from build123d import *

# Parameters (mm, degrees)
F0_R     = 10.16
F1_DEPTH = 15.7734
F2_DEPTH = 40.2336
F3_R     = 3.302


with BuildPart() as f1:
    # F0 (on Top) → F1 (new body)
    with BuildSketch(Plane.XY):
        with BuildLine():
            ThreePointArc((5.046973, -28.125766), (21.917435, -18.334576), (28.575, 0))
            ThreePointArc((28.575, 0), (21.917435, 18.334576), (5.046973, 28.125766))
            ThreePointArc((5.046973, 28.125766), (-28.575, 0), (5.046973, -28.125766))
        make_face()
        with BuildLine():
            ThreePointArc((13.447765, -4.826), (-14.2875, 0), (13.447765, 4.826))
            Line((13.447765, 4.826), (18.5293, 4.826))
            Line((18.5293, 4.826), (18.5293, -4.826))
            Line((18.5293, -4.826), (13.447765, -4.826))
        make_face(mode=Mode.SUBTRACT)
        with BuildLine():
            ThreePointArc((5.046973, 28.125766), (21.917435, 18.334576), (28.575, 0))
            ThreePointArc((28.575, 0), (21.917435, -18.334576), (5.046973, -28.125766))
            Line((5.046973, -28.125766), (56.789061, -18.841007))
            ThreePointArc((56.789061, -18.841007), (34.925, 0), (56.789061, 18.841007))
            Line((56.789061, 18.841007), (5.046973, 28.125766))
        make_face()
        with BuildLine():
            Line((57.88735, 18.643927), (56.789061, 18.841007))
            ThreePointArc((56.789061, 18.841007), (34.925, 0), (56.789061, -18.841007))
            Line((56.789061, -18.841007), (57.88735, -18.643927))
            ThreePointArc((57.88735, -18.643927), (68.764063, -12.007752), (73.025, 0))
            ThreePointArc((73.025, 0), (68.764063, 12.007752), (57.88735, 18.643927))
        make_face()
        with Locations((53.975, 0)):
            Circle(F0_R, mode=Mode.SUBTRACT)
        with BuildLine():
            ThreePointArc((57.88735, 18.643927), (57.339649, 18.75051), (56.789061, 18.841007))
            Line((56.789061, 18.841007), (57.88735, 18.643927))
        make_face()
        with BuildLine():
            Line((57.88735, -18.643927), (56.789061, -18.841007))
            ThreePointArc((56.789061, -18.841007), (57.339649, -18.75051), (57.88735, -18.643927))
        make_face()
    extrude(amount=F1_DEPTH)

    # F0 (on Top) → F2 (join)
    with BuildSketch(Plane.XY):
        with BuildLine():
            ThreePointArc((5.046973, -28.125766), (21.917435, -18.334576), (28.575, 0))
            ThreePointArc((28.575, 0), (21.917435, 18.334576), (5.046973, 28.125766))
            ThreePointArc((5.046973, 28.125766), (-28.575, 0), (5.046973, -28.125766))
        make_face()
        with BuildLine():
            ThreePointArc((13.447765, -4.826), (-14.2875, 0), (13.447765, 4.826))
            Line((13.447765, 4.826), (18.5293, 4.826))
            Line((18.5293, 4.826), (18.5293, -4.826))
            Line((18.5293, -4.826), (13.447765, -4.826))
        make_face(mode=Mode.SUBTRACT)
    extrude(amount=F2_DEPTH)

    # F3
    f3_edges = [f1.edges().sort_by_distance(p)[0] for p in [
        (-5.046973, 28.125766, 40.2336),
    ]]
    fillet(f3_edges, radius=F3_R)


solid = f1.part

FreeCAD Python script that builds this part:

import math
import FreeCAD as App
import Part
import Sketcher

V = App.Vector
Q = App.Units.Quantity


def edges_at(feature, points):
    """Names of the edges that pass closest to the given points."""
    edges = feature.Shape.Edges
    near = lambda p: min(range(len(edges)), key=lambda i: edges[i].distToShape(Part.Vertex(*p))[0])
    return sorted({f"Edge{near(p) + 1}" for p in points})

doc = App.newDocument("Part")
params = doc.addObject("Spreadsheet::Sheet", "Params")
for row, (alias, value) in enumerate([
    ("sketch1_diameter", "0.8 in"),
    ("sketch1_radius", "0.75 in"),
    ("sketch1_radius2", "1.125 in"),
    ("sketch1_radius3", "0.5625 in"),
    ("sketch1_height", "0.38 in"),
    ("pad1_length", "0.621 in"),
    ("sketch2_radius", "1.125 in"),
    ("sketch2_radius2", "0.5625 in"),
    ("sketch2_height", "0.38 in"),
    ("pad2_length", "1.584 in"),
    ("fillet_radius", "0.13 in"),
], start=1):
    params.set(f"A{row}", alias)
    params.set(f"B{row}", "=" + value)
    params.setAlias(f"B{row}", alias)

body = doc.addObject("PartDesign::Body", "Body")

sketch1 = doc.addObject("Sketcher::SketchObject", "Sketch")
body.addObject(sketch1)
sketch1.AttachmentSupport = (doc.XY_Plane, [""])
sketch1.MapMode = "FlatFace"
sketch1.addGeometry([
    Part.ArcOfCircle(Part.Circle(V(0, 0, 0), V(0, 0, 1), 28.6), math.radians(80), math.radians(280)),
    Part.LineSegment(V(5, -28.1, 0), V(56.8, -18.8, 0)),
    Part.ArcOfCircle(Part.Circle(V(54, 0, 0), V(0, 0, 1), 19.1), math.radians(-81.51), math.radians(-78.15)),
    Part.ArcOfCircle(Part.Circle(V(54, 0, 0), V(0, 0, 1), 19.1), math.radians(-78), math.radians(0)),
    Part.ArcOfCircle(Part.Circle(V(54, 0, 0), V(0, 0, 1), 19.1), math.radians(0), math.radians(78)),
    Part.ArcOfCircle(Part.Circle(V(54, 0, 0), V(0, 0, 1), 19.1), math.radians(78.15), math.radians(81.51)),
    Part.LineSegment(V(56.8, 18.8, 0), V(5, 28.1, 0)),
    Part.LineSegment(V(18.5, -4.8, 0), V(13.4, -4.8, 0)),
    Part.ArcOfCircle(Part.Circle(V(0, 0, 0), V(0, 0, 1), 14.3), math.radians(20), math.radians(340)),
    Part.LineSegment(V(13.4, 4.8, 0), V(18.5, 4.8, 0)),
    Part.LineSegment(V(18.5, 4.8, 0), V(18.5, -4.8, 0)),
    Part.Circle(V(54, 0, 0), V(0, 0, 1), 10.2),
], False)
sketch1.addConstraint([
    Sketcher.Constraint("Tangent", 0, 2, 1, 1),
    Sketcher.Constraint("Coincident", 1, 2, 2, 1),
    Sketcher.Constraint("Tangent", 2, 2, 3, 1),
    Sketcher.Constraint("Tangent", 3, 2, 4, 1),
    Sketcher.Constraint("Tangent", 4, 2, 5, 1),
    Sketcher.Constraint("Coincident", 5, 2, 6, 1),
    Sketcher.Constraint("Tangent", 6, 2, 0, 1),
    Sketcher.Constraint("Coincident", 7, 2, 8, 2),
    Sketcher.Constraint("Coincident", 8, 1, 9, 1),
    Sketcher.Constraint("Coincident", 9, 2, 10, 1),
    Sketcher.Constraint("Coincident", 10, 2, 7, 1),
    Sketcher.Constraint("Horizontal", 7),
    Sketcher.Constraint("Horizontal", 9),
    Sketcher.Constraint("Vertical", 10),
    Sketcher.Constraint("Coincident", 0, 3, -1, 1),
    Sketcher.Constraint("Coincident", 8, 3, -1, 1),
    Sketcher.Constraint("Coincident", 11, 3, 3, 3),
    Sketcher.Constraint("Equal", 3, 4),
    Sketcher.Constraint("Equal", 2, 5),
    Sketcher.Constraint("Symmetric", 2, 2, 4, 2, -1),
    Sketcher.Constraint("PointOnObject", 3, 2, -1),
    Sketcher.Constraint("Vertical", 1, 2, 5, 2),
    Sketcher.Constraint("Vertical", 7, 2, 8, 1),
    Sketcher.Constraint("Diameter", 11, Q("0.8 in")),
    Sketcher.Constraint("Radius", 3, Q("0.75 in")),
    Sketcher.Constraint("Radius", 0, Q("1.125 in")),
    Sketcher.Constraint("Radius", 8, Q("0.5625 in")),
    Sketcher.Constraint("DistanceY", 10, 2, 10, 1, Q("0.38 in")),
    Sketcher.Constraint("DistanceX", -1, 1, 3, 3, Q("2.125 in")),
    Sketcher.Constraint("Radius", 2, 19.050131),
    Sketcher.Constraint("DistanceX", -1, 1, 9, 2, Q("0.7295 in")),
    Sketcher.Constraint("Distance", 1, 52.568531),
    Sketcher.Constraint("DistanceX", -1, 1, 2, 2, 57.88735),
])
sketch1.setExpression("Constraints[23]", "Params.sketch1_diameter")
sketch1.setExpression("Constraints[24]", "Params.sketch1_radius")
sketch1.setExpression("Constraints[25]", "Params.sketch1_radius2")
sketch1.setExpression("Constraints[26]", "Params.sketch1_radius3")
sketch1.setExpression("Constraints[27]", "Params.sketch1_height")
pad1 = doc.addObject("PartDesign::Pad", "Pad")
body.addObject(pad1)
pad1.Profile = sketch1
pad1.setExpression("Length", "Params.pad1_length")

sketch2 = doc.addObject("Sketcher::SketchObject", "Sketch001")
body.addObject(sketch2)
sketch2.AttachmentSupport = (doc.XY_Plane, [""])
sketch2.MapMode = "FlatFace"
sketch2.addGeometry([
    Part.ArcOfCircle(Part.Circle(V(0, 0, 0), V(0, 0, 1), 29), math.radians(-80), math.radians(0)),
    Part.ArcOfCircle(Part.Circle(V(0, 0, 0), V(0, 0, 1), 29), math.radians(0), math.radians(80)),
    Part.ArcOfCircle(Part.Circle(V(0, 0, 0), V(0, 0, 1), 29), math.radians(80), math.radians(280)),
    Part.LineSegment(V(19, -5, 0), V(13, -5, 0)),
    Part.ArcOfCircle(Part.Circle(V(0, 0, 0), V(0, 0, 1), 14), math.radians(20), math.radians(340)),
    Part.LineSegment(V(13, 5, 0), V(19, 5, 0)),
    Part.LineSegment(V(19, 5, 0), V(19, -5, 0)),
], False)
sketch2.addConstraint([
    Sketcher.Constraint("Tangent", 0, 2, 1, 1),
    Sketcher.Constraint("Tangent", 1, 2, 2, 1),
    Sketcher.Constraint("Tangent", 2, 2, 0, 1),
    Sketcher.Constraint("Coincident", 3, 2, 4, 2),
    Sketcher.Constraint("Coincident", 4, 1, 5, 1),
    Sketcher.Constraint("Coincident", 5, 2, 6, 1),
    Sketcher.Constraint("Coincident", 6, 2, 3, 1),
    Sketcher.Constraint("Horizontal", 3),
    Sketcher.Constraint("Horizontal", 5),
    Sketcher.Constraint("Vertical", 6),
    Sketcher.Constraint("Coincident", 0, 3, -1, 1),
    Sketcher.Constraint("Coincident", 4, 3, -1, 1),
    Sketcher.Constraint("PointOnObject", 0, 2, -1),
    Sketcher.Constraint("Vertical", 1, 2, 2, 2),
    Sketcher.Constraint("Vertical", 3, 2, 4, 1),
    Sketcher.Constraint("Radius", 0, Q("1.125 in")),
    Sketcher.Constraint("Radius", 4, Q("0.5625 in")),
    Sketcher.Constraint("DistanceY", 6, 2, 6, 1, Q("0.38 in")),
    Sketcher.Constraint("DistanceX", -1, 1, 5, 2, Q("0.7295 in")),
    Sketcher.Constraint("DistanceX", -1, 1, 1, 2, 5.046973),
])
sketch2.setExpression("Constraints[15]", "Params.sketch2_radius")
sketch2.setExpression("Constraints[16]", "Params.sketch2_radius2")
sketch2.setExpression("Constraints[17]", "Params.sketch2_height")
pad2 = doc.addObject("PartDesign::Pad", "Pad001")
body.addObject(pad2)
pad2.Profile = sketch2
pad2.setExpression("Length", "Params.pad2_length")
doc.recompute()

fillet = doc.addObject("PartDesign::Fillet", "Fillet")
body.addObject(fillet)
fillet.Base = (pad2, edges_at(pad2, [(-28.575, 0, 40.234)]))
fillet.setExpression("Radius", "Params.fillet_radius")

doc.recompute()
